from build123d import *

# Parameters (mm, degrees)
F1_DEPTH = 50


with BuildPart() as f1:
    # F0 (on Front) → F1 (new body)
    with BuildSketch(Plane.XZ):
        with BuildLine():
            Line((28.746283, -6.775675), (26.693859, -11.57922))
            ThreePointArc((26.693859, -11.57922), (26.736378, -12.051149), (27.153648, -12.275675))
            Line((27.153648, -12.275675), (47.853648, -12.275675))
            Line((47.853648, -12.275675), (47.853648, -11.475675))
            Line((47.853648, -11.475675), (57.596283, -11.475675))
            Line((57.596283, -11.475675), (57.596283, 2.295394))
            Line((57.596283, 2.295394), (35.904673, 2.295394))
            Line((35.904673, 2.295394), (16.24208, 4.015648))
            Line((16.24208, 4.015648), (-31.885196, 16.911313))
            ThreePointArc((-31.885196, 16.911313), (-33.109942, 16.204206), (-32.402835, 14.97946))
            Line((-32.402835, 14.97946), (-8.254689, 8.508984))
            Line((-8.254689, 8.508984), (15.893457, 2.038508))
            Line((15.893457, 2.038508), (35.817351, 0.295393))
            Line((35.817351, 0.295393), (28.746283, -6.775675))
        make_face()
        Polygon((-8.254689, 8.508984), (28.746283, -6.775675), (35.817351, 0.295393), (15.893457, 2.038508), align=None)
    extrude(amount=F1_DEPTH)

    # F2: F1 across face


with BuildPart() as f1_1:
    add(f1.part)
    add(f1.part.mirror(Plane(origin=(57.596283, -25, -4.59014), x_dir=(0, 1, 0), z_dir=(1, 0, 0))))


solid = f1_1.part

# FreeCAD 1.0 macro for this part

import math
import FreeCAD as App
import Part
import Sketcher
from FreeCAD import Vector
Q = App.Units.Quantity

doc = App.newDocument("Part")
body = doc.addObject("PartDesign::Body", "Body")

# Sketch on XZ plane
sketch1 = body.newObject("Sketcher::SketchObject", "Sketch")
sketch1.AttachmentSupport = (doc.getObject("XZ_Plane"), [""])
sketch1.MapMode = "FlatFace"
sketch1.addGeometry([
    Part.LineSegment(Vector(28.7, -6.8, 0), Vector(26.7, -11.6, 0)),  # 0
    Part.ArcOfCircle(Part.Circle(Vector(27.2, -11.8, 0), Vector(0, 0, 1), 0.5), math.radians(157), math.radians(270)),  # 1
    Part.LineSegment(Vector(27.2, -12.3, 0), Vector(47.9, -12.3, 0)),  # 2
    Part.LineSegment(Vector(47.9, -12.3, 0), Vector(47.9, -11.5, 0)),  # 3
    Part.LineSegment(Vector(47.9, -11.5, 0), Vector(57.6, -11.5, 0)),  # 4
    Part.LineSegment(Vector(57.6, -11.5, 0), Vector(57.6, 2.3, 0)),  # 5
    Part.LineSegment(Vector(57.6, 2.3, 0), Vector(35.9, 2.3, 0)),  # 6
    Part.LineSegment(Vector(35.9, 2.3, 0), Vector(16.2, 4, 0)),  # 7
    Part.LineSegment(Vector(16.2, 4, 0), Vector(-31.9, 16.9, 0)),  # 8
    Part.ArcOfCircle(Part.Circle(Vector(-32.1, 15.9, 0), Vector(0, 0, 1), 1), math.radians(75), math.radians(255)),  # 9
    Part.LineSegment(Vector(-32.4, 15, 0), Vector(-8.3, 8.5, 0)),  # 10
    Part.LineSegment(Vector(-8.3, 8.5, 0), Vector(28.7, -6.8, 0)),  # 11
], False)
sketch1.addConstraint([
    Sketcher.Constraint("Tangent", 0, 2, 1, 1),
    Sketcher.Constraint("Tangent", 1, 2, 2, 1),
    Sketcher.Constraint("Coincident", 2, 2, 3, 1),
    Sketcher.Constraint("Coincident", 3, 2, 4, 1),
    Sketcher.Constraint("Coincident", 4, 2, 5, 1),
    Sketcher.Constraint("Coincident", 5, 2, 6, 1),
    Sketcher.Constraint("Coincident", 6, 2, 7, 1),
    Sketcher.Constraint("Coincident", 7, 2, 8, 1),
    Sketcher.Constraint("Tangent", 8, 2, 9, 1),
    Sketcher.Constraint("Tangent", 9, 2, 10, 1),
    Sketcher.Constraint("Coincident", 10, 2, 11, 1),
    Sketcher.Constraint("Coincident", 11, 2, 0, 1),
    Sketcher.Constraint("Horizontal", 2),
    Sketcher.Constraint("Vertical", 3),
    Sketcher.Constraint("Horizontal", 4),
    Sketcher.Constraint("Vertical", 5),
    Sketcher.Constraint("Horizontal", 6),
    Sketcher.Constraint("Parallel", 8, 10),
    Sketcher.Constraint("Radius", 9, Q("1.000001 mm")),
    Sketcher.Constraint("Radius", 1, Q("0.5 mm")),
    Sketcher.Constraint("Angle", 7, Q("175 deg")),
    Sketcher.Constraint("Angle", 8, Q("165 deg")),
    Sketcher.Constraint("Distance", 10, Q("25 mm")),
    Sketcher.Constraint("DistanceX", 2, 1, 2, 2, Q("20.7 mm")),
    Sketcher.Constraint("DistanceY", 3, 1, 3, 2, Q("0.8 mm")),
    Sketcher.Constraint("DistanceY", 1, 3, 11, 2, Q("5 mm")),
    Sketcher.Constraint("Distance", 7, Q("19.737701 mm")),
    Sketcher.Constraint("DistanceX", 6, 2, 6, 1, Q("21.69161 mm")),
    Sketcher.Constraint("DistanceY", 5, 1, 5, 2, Q("13.771069 mm")),
    Sketcher.Constraint("DistanceX", 4, 1, 4, 2, Q("9.742635 mm")),
    Sketcher.Constraint("DistanceX", -1, 1, 0, 2, Q("26.693859 mm")),
    Sketcher.Constraint("DistanceY", 0, 2, -1, 1, Q("11.57922 mm")),
    Sketcher.Constraint("DistanceX", -1, 1, 1, 2, Q("27.153648 mm")),
    Sketcher.Constraint("DistanceY", -1, 1, 9, 2, Q("14.97946 mm")),
])
pad1 = body.newObject("PartDesign::Pad", "Pad")
pad1.Profile = sketch1
pad1.Length = 50
body2 = doc.addObject("PartDesign::Body", "Body001")
doc.recompute()

body2.BaseFeature = body
doc.recompute()

mirroring = doc.addObject("Part::Mirroring", "Mirroring")
mirroring.Source = body
mirroring.Base = Vector(57.596283, -25, -4.59014)
mirroring.Normal = Vector(1, 0, 0)
body3 = doc.addObject("PartDesign::Body", "Body002")
body3.BaseFeature = mirroring
boolean = body2.newObject("PartDesign::Boolean", "Boolean")
boolean.Type = "Fuse"
boolean.addObjects([body3])
doc.recompute()
mirroring.Visibility = False

doc.recompute()
